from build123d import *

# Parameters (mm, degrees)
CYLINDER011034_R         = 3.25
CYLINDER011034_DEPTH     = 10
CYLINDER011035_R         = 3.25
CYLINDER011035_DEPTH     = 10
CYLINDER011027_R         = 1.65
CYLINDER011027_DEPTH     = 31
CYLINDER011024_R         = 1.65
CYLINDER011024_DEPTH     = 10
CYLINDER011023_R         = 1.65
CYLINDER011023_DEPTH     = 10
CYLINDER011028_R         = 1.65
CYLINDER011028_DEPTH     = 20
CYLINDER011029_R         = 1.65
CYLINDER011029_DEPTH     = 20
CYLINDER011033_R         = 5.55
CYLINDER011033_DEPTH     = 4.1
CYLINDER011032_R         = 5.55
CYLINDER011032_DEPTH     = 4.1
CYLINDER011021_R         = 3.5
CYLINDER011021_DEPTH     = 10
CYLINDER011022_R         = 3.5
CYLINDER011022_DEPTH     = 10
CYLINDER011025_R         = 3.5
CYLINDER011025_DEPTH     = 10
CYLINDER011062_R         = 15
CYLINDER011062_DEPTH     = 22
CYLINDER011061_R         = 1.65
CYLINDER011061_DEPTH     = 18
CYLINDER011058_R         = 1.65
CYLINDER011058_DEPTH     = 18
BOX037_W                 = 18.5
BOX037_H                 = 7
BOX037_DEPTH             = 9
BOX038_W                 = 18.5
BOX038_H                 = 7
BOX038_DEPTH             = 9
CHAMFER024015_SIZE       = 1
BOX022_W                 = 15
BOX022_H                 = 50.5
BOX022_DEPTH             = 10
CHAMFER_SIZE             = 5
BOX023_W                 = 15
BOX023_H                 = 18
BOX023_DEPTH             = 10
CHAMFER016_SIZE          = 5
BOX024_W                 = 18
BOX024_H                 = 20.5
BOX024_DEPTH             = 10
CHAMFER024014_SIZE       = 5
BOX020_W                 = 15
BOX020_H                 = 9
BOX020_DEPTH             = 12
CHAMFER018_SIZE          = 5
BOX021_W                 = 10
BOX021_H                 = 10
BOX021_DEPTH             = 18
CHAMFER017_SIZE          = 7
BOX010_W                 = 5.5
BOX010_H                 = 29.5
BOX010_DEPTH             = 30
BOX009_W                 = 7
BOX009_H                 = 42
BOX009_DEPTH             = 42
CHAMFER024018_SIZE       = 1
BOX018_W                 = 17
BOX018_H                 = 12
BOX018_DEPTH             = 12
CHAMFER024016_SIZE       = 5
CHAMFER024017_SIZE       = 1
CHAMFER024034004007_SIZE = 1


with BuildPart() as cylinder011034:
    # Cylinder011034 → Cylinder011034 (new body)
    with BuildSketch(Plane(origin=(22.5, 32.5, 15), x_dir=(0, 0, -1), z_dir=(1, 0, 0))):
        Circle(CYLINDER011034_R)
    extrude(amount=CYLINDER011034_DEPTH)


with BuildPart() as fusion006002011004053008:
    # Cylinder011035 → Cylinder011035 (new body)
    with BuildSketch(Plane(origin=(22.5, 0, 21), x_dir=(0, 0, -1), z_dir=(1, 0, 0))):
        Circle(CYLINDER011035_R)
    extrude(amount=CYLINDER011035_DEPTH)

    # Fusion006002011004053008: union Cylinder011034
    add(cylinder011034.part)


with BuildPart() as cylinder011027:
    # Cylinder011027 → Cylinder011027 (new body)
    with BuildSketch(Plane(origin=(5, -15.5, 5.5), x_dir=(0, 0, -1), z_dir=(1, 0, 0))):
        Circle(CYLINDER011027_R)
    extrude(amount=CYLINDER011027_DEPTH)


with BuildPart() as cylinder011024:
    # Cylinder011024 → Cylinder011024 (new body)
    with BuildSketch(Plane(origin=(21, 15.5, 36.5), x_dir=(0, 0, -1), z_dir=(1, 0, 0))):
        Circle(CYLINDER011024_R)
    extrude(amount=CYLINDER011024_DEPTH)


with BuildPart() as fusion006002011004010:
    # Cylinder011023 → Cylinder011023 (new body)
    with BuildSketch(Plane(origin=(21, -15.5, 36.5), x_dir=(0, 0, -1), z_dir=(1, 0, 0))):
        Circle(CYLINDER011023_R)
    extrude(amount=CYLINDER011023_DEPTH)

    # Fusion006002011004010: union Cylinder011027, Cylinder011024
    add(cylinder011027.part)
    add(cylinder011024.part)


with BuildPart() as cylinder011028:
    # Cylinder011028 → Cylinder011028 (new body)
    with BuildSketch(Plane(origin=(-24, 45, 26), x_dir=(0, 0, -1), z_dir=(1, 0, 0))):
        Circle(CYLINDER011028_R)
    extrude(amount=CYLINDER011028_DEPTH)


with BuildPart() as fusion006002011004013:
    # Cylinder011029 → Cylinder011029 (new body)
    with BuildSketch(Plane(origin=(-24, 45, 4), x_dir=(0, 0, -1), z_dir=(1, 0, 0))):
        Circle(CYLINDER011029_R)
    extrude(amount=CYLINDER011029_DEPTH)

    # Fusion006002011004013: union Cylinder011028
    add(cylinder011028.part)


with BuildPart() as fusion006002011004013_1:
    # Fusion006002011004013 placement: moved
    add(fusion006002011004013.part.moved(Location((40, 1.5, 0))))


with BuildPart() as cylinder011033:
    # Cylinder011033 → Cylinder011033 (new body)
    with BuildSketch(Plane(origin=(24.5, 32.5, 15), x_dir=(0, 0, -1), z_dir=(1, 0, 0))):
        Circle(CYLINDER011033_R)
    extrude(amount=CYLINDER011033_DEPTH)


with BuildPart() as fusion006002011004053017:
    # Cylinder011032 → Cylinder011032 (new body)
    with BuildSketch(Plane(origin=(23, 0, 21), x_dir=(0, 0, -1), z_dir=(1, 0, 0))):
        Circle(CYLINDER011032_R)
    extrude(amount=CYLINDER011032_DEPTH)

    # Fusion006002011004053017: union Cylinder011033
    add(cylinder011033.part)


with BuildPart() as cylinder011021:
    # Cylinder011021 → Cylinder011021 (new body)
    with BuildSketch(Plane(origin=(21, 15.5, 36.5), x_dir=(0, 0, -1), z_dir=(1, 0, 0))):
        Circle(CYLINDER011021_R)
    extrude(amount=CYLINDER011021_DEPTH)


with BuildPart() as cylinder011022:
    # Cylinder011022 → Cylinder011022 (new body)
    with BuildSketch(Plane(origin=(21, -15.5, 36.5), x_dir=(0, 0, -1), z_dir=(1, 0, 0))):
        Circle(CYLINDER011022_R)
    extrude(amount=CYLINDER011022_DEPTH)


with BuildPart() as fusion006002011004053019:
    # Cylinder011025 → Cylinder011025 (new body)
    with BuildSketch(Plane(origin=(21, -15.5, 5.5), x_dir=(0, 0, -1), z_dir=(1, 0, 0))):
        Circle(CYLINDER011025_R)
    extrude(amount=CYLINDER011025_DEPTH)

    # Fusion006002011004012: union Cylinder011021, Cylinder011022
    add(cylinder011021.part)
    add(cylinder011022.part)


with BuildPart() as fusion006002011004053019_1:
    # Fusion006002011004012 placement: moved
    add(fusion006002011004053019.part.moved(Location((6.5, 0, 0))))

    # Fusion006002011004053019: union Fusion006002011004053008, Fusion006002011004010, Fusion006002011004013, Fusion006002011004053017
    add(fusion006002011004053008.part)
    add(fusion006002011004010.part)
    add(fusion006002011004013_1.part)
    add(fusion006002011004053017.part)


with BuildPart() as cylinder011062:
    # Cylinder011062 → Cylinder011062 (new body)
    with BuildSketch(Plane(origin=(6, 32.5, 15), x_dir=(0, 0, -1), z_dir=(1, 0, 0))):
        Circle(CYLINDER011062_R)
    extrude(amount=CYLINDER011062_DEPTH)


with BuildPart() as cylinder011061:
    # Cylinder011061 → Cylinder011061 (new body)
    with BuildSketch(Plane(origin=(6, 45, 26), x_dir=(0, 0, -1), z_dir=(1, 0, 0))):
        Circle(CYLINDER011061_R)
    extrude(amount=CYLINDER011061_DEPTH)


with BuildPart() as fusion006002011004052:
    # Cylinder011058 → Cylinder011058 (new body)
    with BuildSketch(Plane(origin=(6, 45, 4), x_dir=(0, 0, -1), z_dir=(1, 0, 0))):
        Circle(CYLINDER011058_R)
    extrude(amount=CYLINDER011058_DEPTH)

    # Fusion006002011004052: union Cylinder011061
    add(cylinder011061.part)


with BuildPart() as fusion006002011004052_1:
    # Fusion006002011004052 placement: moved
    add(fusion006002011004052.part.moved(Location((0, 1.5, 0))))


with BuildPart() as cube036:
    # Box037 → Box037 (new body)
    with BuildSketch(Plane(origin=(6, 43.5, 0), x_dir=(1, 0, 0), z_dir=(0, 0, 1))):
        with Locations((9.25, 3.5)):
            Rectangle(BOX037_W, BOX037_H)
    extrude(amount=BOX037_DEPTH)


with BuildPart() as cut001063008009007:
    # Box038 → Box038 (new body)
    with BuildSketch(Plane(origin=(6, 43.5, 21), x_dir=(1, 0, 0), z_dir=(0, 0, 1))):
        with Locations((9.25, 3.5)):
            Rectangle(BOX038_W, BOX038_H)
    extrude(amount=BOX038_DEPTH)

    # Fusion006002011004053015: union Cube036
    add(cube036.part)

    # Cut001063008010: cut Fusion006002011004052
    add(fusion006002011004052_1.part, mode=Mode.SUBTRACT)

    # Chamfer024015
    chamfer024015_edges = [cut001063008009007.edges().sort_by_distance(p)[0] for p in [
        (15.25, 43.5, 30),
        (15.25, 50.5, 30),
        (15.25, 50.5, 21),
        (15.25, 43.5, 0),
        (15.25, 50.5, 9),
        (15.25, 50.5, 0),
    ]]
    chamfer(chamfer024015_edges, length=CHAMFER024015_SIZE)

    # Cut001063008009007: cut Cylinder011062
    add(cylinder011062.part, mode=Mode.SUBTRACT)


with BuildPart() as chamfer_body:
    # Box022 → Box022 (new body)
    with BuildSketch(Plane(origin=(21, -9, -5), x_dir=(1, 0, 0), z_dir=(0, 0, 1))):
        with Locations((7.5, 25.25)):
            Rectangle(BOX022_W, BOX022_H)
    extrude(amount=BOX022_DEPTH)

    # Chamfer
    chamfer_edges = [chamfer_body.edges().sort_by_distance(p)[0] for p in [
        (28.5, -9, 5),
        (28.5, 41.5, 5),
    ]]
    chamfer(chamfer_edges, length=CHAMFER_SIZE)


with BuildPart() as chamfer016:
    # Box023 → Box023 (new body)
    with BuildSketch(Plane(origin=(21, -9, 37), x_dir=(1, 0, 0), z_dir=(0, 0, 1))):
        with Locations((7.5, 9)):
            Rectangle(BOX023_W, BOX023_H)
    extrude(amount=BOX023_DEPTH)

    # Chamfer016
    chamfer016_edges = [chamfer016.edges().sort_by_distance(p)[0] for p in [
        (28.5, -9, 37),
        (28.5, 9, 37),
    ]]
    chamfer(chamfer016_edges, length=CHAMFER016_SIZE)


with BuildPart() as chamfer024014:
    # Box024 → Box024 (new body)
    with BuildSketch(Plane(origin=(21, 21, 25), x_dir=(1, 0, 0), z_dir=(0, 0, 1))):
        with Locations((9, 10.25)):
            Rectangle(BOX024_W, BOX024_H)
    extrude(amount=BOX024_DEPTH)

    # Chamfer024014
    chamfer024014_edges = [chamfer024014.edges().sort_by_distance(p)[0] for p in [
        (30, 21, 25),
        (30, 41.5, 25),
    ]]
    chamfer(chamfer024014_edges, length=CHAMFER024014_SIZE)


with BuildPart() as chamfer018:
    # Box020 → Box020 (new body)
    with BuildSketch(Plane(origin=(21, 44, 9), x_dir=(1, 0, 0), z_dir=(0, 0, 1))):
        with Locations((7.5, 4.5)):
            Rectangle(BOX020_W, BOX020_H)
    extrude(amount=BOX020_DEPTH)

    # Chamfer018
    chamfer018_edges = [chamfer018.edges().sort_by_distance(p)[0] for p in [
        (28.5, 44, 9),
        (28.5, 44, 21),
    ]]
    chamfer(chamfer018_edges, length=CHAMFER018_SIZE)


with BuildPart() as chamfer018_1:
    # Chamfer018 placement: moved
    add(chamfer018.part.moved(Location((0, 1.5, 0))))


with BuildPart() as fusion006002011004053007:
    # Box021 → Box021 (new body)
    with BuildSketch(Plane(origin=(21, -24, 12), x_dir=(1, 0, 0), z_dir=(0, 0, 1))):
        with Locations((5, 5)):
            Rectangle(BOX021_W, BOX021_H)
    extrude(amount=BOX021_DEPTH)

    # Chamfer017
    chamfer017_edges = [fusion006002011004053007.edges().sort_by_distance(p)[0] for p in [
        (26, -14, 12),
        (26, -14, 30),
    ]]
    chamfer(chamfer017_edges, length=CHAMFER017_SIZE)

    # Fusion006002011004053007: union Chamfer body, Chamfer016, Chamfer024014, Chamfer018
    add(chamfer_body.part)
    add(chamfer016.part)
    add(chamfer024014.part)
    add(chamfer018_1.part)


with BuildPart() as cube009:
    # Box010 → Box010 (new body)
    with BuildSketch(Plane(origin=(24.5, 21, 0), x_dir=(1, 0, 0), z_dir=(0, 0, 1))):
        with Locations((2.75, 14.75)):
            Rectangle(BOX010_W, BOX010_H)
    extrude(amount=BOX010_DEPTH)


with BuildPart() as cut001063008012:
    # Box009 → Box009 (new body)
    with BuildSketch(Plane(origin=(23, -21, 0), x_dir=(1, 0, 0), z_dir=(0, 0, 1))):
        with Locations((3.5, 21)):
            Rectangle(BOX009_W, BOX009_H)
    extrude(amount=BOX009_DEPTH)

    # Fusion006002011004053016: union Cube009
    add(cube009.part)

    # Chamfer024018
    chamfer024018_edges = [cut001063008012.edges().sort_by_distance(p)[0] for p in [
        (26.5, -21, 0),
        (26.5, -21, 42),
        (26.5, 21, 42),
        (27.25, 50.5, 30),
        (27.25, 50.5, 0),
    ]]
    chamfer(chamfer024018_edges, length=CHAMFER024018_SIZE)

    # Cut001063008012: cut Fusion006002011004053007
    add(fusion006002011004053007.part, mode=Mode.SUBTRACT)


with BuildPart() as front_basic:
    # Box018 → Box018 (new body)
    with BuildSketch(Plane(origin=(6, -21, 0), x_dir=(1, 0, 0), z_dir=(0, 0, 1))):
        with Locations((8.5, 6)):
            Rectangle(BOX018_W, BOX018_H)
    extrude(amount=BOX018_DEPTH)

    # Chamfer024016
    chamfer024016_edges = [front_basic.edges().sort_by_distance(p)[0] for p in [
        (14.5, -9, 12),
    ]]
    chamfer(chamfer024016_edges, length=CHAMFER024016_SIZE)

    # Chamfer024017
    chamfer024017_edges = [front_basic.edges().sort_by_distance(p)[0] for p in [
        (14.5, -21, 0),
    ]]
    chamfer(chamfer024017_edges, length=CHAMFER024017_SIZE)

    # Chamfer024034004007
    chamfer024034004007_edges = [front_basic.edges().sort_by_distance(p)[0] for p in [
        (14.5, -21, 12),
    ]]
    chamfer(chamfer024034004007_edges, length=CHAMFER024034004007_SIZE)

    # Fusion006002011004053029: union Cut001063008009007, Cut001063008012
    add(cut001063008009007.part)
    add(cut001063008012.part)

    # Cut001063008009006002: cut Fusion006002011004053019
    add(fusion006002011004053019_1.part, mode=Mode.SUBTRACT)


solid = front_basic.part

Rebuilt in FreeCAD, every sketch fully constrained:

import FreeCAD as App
import Part
import Sketcher
from FreeCAD import Vector
Q = App.Units.Quantity


def edges_at(feature, points):
    """Names of the edges that pass closest to the given points."""
    edges = feature.Shape.Edges
    near = lambda p: min(range(len(edges)), key=lambda i: edges[i].distToShape(Part.Vertex(*p))[0])
    return sorted({f"Edge{near(p) + 1}" for p in points})


def add_polygon(sketch, points):
    """Adds a closed chain of lines whose ends are joined by coincident constraints."""
    first, n = sketch.GeometryCount, len(points)
    for a, b in zip(points, points[1:] + points[:1]):
        sketch.addGeometry(Part.LineSegment(App.Vector(*a, 0), App.Vector(*b, 0)), False)
    for i in range(n):
        sketch.addConstraint(Sketcher.Constraint("Coincident", first + i, 2, first + (i + 1) % n, 1))

doc = App.newDocument("Part")
params = doc.addObject("Spreadsheet::Sheet", "Params")
for row, (alias, value) in enumerate([
    ("sketch1_diameter", "6.5 mm"),
    ("pad1_length", "10 mm"),
    ("sketch2_diameter", "6.5 mm"),
    ("pad2_length", "10 mm"),
    ("sketch3_diameter", "3.3 mm"),
    ("pad3_length", "31 mm"),
    ("sketch4_diameter", "3.3 mm"),
    ("pad4_length", "10 mm"),
    ("sketch5_diameter", "3.3 mm"),
    ("pad5_length", "10 mm"),
    ("sketch6_diameter", "3.3 mm"),
    ("pad6_length", "20 mm"),
    ("sketch7_diameter", "3.3 mm"),
    ("pad7_length", "20 mm"),
    ("sketch8_diameter", "11.1 mm"),
    ("pad8_length", "4.1 mm"),
    ("sketch9_diameter", "11.1 mm"),
    ("pad9_length", "4.1 mm"),
    ("sketch10_diameter", "7 mm"),
    ("pad10_length", "10 mm"),
    ("sketch11_diameter", "7 mm"),
    ("pad11_length", "10 mm"),
    ("sketch12_diameter", "7 mm"),
    ("pad12_length", "10 mm"),
    ("sketch13_diameter", "30 mm"),
    ("pad13_length", "22 mm"),
    ("sketch14_diameter", "3.3 mm"),
    ("pad14_length", "18 mm"),
    ("sketch15_diameter", "3.3 mm"),
    ("pad15_length", "18 mm"),
    ("sketch16_height", "7 mm"),
    ("sketch16_width", "18.5 mm"),
    ("pad16_length", "9 mm"),
    ("sketch17_height", "7 mm"),
    ("sketch17_width", "18.5 mm"),
    ("pad17_length", "9 mm"),
    ("chamfer_size", "1 mm"),
    ("sketch18_width", "15 mm"),
    ("sketch18_height", "50.5 mm"),
    ("pad18_length", "10 mm"),
    ("chamfer2_size", "5 mm"),
    ("sketch19_width", "15 mm"),
    ("sketch19_height", "18 mm"),
    ("pad19_length", "10 mm"),
    ("chamfer3_size", "5 mm"),
    ("sketch20_width", "18 mm"),
    ("sketch20_height", "20.5 mm"),
    ("pad20_length", "10 mm"),
    ("chamfer4_size", "5 mm"),
    ("sketch21_width", "15 mm"),
    ("sketch21_height", "9 mm"),
    ("pad21_length", "12 mm"),
    ("chamfer5_size", "5 mm"),
    ("sketch22_width", "10 mm"),
    ("pad22_length", "18 mm"),
    ("chamfer6_size", "7 mm"),
    ("sketch23_width", "5.5 mm"),
    ("sketch23_height", "29.5 mm"),
    ("pad23_length", "30 mm"),
    ("sketch24_width", "7 mm"),
    ("sketch24_height", "42 mm"),
    ("pad24_length", "42 mm"),
    ("chamfer7_size", "1 mm"),
    ("sketch25_width", "17 mm"),
    ("sketch25_height", "12 mm"),
    ("pad25_length", "12 mm"),
    ("chamfer8_size", "5 mm"),
    ("chamfer9_size", "1 mm"),
    ("chamfer10_size", "1 mm"),
], start=1):
    params.set(f"A{row}", alias)
    params.set(f"B{row}", "=" + value)
    params.setAlias(f"B{row}", alias)

body = doc.addObject("PartDesign::Body", "Body")

sketch1 = doc.addObject("Sketcher::SketchObject", "Sketch")
body.addObject(sketch1)
sketch1.AttachmentSupport = (doc.YZ_Plane, [""])
sketch1.MapMode = "FlatFace"
sketch1.AttachmentOffset = App.Placement(Vector(0, 0, 22.5), App.Rotation())
sketch1.addGeometry(Part.Circle(Vector(32.5, 15, 0), Vector(0, 0, 1), 3.2), False)
sketch1.addConstraint([
    Sketcher.Constraint("Diameter", 0, Q("6.5 mm")),
    Sketcher.Constraint("DistanceY", -1, 1, 0, 3, Q("15 mm")),
    Sketcher.Constraint("DistanceX", -1, 1, 0, 3, Q("32.5 mm")),
])
sketch1.setExpression("Constraints[0]", "Params.sketch1_diameter")
pad1 = doc.addObject("PartDesign::Pad", "Pad")
body.addObject(pad1)
pad1.Profile = sketch1
pad1.setExpression("Length", "Params.pad1_length")
body2 = doc.addObject("PartDesign::Body", "Body001")
body2.AllowCompound = True

sketch2 = doc.addObject("Sketcher::SketchObject", "Sketch001")
body2.addObject(sketch2)
sketch2.AttachmentSupport = (doc.getObject("YZ_Plane001"), [""])
sketch2.MapMode = "FlatFace"
sketch2.AttachmentOffset = App.Placement(Vector(0, 0, 22.5), App.Rotation())
sketch2.addGeometry(Part.Circle(Vector(0, 21, 0), Vector(0, 0, 1), 3.2), False)
sketch2.addConstraint([
    Sketcher.Constraint("PointOnObject", 0, 3, -2),
    Sketcher.Constraint("Diameter", 0, Q("6.5 mm")),
    Sketcher.Constraint("DistanceY", -1, 1, 0, 3, Q("21 mm")),
])
sketch2.setExpression("Constraints[1]", "Params.sketch2_diameter")
pad2 = doc.addObject("PartDesign::Pad", "Pad001")
body2.addObject(pad2)
pad2.Profile = sketch2
pad2.setExpression("Length", "Params.pad2_length")
doc.recompute()

boolean = doc.addObject("PartDesign::Boolean", "Boolean")
body2.addObject(boolean)
boolean.Type = "Fuse"
boolean.addObjects([body])
body3 = doc.addObject("PartDesign::Body", "Body002")

sketch3 = doc.addObject("Sketcher::SketchObject", "Sketch002")
body3.addObject(sketch3)
sketch3.AttachmentSupport = (doc.getObject("YZ_Plane002"), [""])
sketch3.MapMode = "FlatFace"
sketch3.AttachmentOffset = App.Placement(Vector(0, 0, 5), App.Rotation())
sketch3.addGeometry(Part.Circle(Vector(-15.5, 5.5, 0), Vector(0, 0, 1), 1.6), False)
sketch3.addConstraint([
    Sketcher.Constraint("Diameter", 0, Q("3.3 mm")),
    Sketcher.Constraint("DistanceX", 0, 3, -1, 1, Q("15.5 mm")),
    Sketcher.Constraint("DistanceY", -1, 1, 0, 3, Q("5.5 mm")),
])
sketch3.setExpression("Constraints[0]", "Params.sketch3_diameter")
pad3 = doc.addObject("PartDesign::Pad", "Pad002")
body3.addObject(pad3)
pad3.Profile = sketch3
pad3.setExpression("Length", "Params.pad3_length")
body4 = doc.addObject("PartDesign::Body", "Body003")

sketch4 = doc.addObject("Sketcher::SketchObject", "Sketch003")
body4.addObject(sketch4)
sketch4.AttachmentSupport = (doc.getObject("YZ_Plane003"), [""])
sketch4.MapMode = "FlatFace"
sketch4.AttachmentOffset = App.Placement(Vector(0, 0, 21), App.Rotation())
sketch4.addGeometry(Part.Circle(Vector(15.5, 36.5, 0), Vector(0, 0, 1), 1.6), False)
sketch4.addConstraint([
    Sketcher.Constraint("Diameter", 0, Q("3.3 mm")),
    Sketcher.Constraint("DistanceX", -1, 1, 0, 3, Q("15.5 mm")),
    Sketcher.Constraint("DistanceY", -1, 1, 0, 3, Q("36.5 mm")),
])
sketch4.setExpression("Constraints[0]", "Params.sketch4_diameter")
pad4 = doc.addObject("PartDesign::Pad", "Pad003")
body4.addObject(pad4)
pad4.Profile = sketch4
pad4.setExpression("Length", "Params.pad4_length")
body5 = doc.addObject("PartDesign::Body", "Body004")
body5.AllowCompound = True

sketch5 = doc.addObject("Sketcher::SketchObject", "Sketch004")
body5.addObject(sketch5)
sketch5.AttachmentSupport = (doc.getObject("YZ_Plane004"), [""])
sketch5.MapMode = "FlatFace"
sketch5.AttachmentOffset = App.Placement(Vector(0, 0, 21), App.Rotation())
sketch5.addGeometry(Part.Circle(Vector(-15.5, 36.5, 0), Vector(0, 0, 1), 1.6), False)
sketch5.addConstraint([
    Sketcher.Constraint("Diameter", 0, Q("3.3 mm")),
    Sketcher.Constraint("DistanceX", 0, 3, -1, 1, Q("15.5 mm")),
    Sketcher.Constraint("DistanceY", -1, 1, 0, 3, Q("36.5 mm")),
])
sketch5.setExpression("Constraints[0]", "Params.sketch5_diameter")
pad5 = doc.addObject("PartDesign::Pad", "Pad004")
body5.addObject(pad5)
pad5.Profile = sketch5
pad5.setExpression("Length", "Params.pad5_length")
doc.recompute()

boolean2 = doc.addObject("PartDesign::Boolean", "Boolean001")
body5.addObject(boolean2)
boolean2.Type = "Fuse"
boolean2.addObjects([body3])
doc.recompute()

boolean3 = doc.addObject("PartDesign::Boolean", "Boolean002")
body5.addObject(boolean3)
boolean3.Type = "Fuse"
boolean3.addObjects([body4])
body6 = doc.addObject("PartDesign::Body", "Body005")

sketch6 = doc.addObject("Sketcher::SketchObject", "Sketch005")
body6.addObject(sketch6)
sketch6.AttachmentSupport = (doc.getObject("YZ_Plane005"), [""])
sketch6.MapMode = "FlatFace"
sketch6.AttachmentOffset = App.Placement(Vector(0, 0, -24), App.Rotation())
sketch6.addGeometry(Part.Circle(Vector(45, 26, 0), Vector(0, 0, 1), 1.6), False)
sketch6.addConstraint([
    Sketcher.Constraint("Diameter", 0, Q("3.3 mm")),
    Sketcher.Constraint("DistanceX", -1, 1, 0, 3, Q("45 mm")),
    Sketcher.Constraint("DistanceY", -1, 1, 0, 3, Q("26 mm")),
])
sketch6.setExpression("Constraints[0]", "Params.sketch6_diameter")
pad6 = doc.addObject("PartDesign::Pad", "Pad005")
body6.addObject(pad6)
pad6.Profile = sketch6
pad6.setExpression("Length", "Params.pad6_length")
body7 = doc.addObject("PartDesign::Body", "Body006")
body7.AllowCompound = True

sketch7 = doc.addObject("Sketcher::SketchObject", "Sketch006")
body7.addObject(sketch7)
sketch7.AttachmentSupport = (doc.getObject("YZ_Plane006"), [""])
sketch7.MapMode = "FlatFace"
sketch7.AttachmentOffset = App.Placement(Vector(0, 0, -24), App.Rotation())
sketch7.addGeometry(Part.Circle(Vector(45, 4, 0), Vector(0, 0, 1), 1.6), False)
sketch7.addConstraint([
    Sketcher.Constraint("Diameter", 0, Q("3.3 mm")),
    Sketcher.Constraint("DistanceX", -1, 1, 0, 3, Q("45 mm")),
    Sketcher.Constraint("DistanceY", -1, 1, 0, 3, Q("4 mm")),
])
sketch7.setExpression("Constraints[0]", "Params.sketch7_diameter")
pad7 = doc.addObject("PartDesign::Pad", "Pad006")
body7.addObject(pad7)
pad7.Profile = sketch7
pad7.setExpression("Length", "Params.pad7_length")
doc.recompute()

boolean4 = doc.addObject("PartDesign::Boolean", "Boolean003")
body7.addObject(boolean4)
boolean4.Type = "Fuse"
boolean4.addObjects([body6])
body8 = doc.addObject("PartDesign::Body", "Body007")
body8.AllowCompound = True
doc.recompute()

body7.Placement = App.Placement(Vector(40, 1.5, 0), App.Rotation(Vector(0, 0, 1), 0))
boolean5 = doc.addObject("PartDesign::Boolean", "Boolean004")
body8.addObject(boolean5)
boolean5.Type = "Fuse"
boolean5.addObjects([body7])
body9 = doc.addObject("PartDesign::Body", "Body008")

sketch8 = doc.addObject("Sketcher::SketchObject", "Sketch007")
body9.addObject(sketch8)
sketch8.AttachmentSupport = (doc.getObject("YZ_Plane008"), [""])
sketch8.MapMode = "FlatFace"
sketch8.AttachmentOffset = App.Placement(Vector(0, 0, 24.5), App.Rotation())
sketch8.addGeometry(Part.Circle(Vector(32, 15, 0), Vector(0, 0, 1), 6), False)
sketch8.addConstraint([
    Sketcher.Constraint("Diameter", 0, Q("11.1 mm")),
    Sketcher.Constraint("DistanceY", -1, 1, 0, 3, Q("15 mm")),
    Sketcher.Constraint("DistanceX", -1, 1, 0, 3, Q("32.5 mm")),
])
sketch8.setExpression("Constraints[0]", "Params.sketch8_diameter")
pad8 = doc.addObject("PartDesign::Pad", "Pad007")
body9.addObject(pad8)
pad8.Profile = sketch8
pad8.setExpression("Length", "Params.pad8_length")
body10 = doc.addObject("PartDesign::Body", "Body009")
body10.AllowCompound = True

sketch9 = doc.addObject("Sketcher::SketchObject", "Sketch008")
body10.addObject(sketch9)
sketch9.AttachmentSupport = (doc.getObject("YZ_Plane009"), [""])
sketch9.MapMode = "FlatFace"
sketch9.AttachmentOffset = App.Placement(Vector(0, 0, 23), App.Rotation())
sketch9.addGeometry(Part.Circle(Vector(0, 21, 0), Vector(0, 0, 1), 6), False)
sketch9.addConstraint([
    Sketcher.Constraint("PointOnObject", 0, 3, -2),
    Sketcher.Constraint("Diameter", 0, Q("11.1 mm")),
    Sketcher.Constraint("DistanceY", -1, 1, 0, 3, Q("21 mm")),
])
sketch9.setExpression("Constraints[1]", "Params.sketch9_diameter")
pad9 = doc.addObject("PartDesign::Pad", "Pad008")
body10.addObject(pad9)
pad9.Profile = sketch9
pad9.setExpression("Length", "Params.pad9_length")
doc.recompute()

boolean6 = doc.addObject("PartDesign::Boolean", "Boolean005")
body10.addObject(boolean6)
boolean6.Type = "Fuse"
boolean6.addObjects([body9])
body11 = doc.addObject("PartDesign::Body", "Body010")

sketch10 = doc.addObject("Sketcher::SketchObject", "Sketch009")
body11.addObject(sketch10)
sketch10.AttachmentSupport = (doc.getObject("YZ_Plane010"), [""])
sketch10.MapMode = "FlatFace"
sketch10.AttachmentOffset = App.Placement(Vector(0, 0, 21), App.Rotation())
sketch10.addGeometry(Part.Circle(Vector(15.5, 36.5, 0), Vector(0, 0, 1), 3.5), False)
sketch10.addConstraint([
    Sketcher.Constraint("Diameter", 0, Q("7 mm")),
    Sketcher.Constraint("DistanceX", -1, 1, 0, 3, Q("15.5 mm")),
    Sketcher.Constraint("DistanceY", -1, 1, 0, 3, Q("36.5 mm")),
])
sketch10.setExpression("Constraints[0]", "Params.sketch10_diameter")
pad10 = doc.addObject("PartDesign::Pad", "Pad009")
body11.addObject(pad10)
pad10.Profile = sketch10
pad10.setExpression("Length", "Params.pad10_length")
body12 = doc.addObject("PartDesign::Body", "Body011")

sketch11 = doc.addObject("Sketcher::SketchObject", "Sketch010")
body12.addObject(sketch11)
sketch11.AttachmentSupport = (doc.getObject("YZ_Plane011"), [""])
sketch11.MapMode = "FlatFace"
sketch11.AttachmentOffset = App.Placement(Vector(0, 0, 21), App.Rotation())
sketch11.addGeometry(Part.Circle(Vector(-15.5, 36.5, 0), Vector(0, 0, 1), 3.5), False)
sketch11.addConstraint([
    Sketcher.Constraint("Diameter", 0, Q("7 mm")),
    Sketcher.Constraint("DistanceX", 0, 3, -1, 1, Q("15.5 mm")),
    Sketcher.Constraint("DistanceY", -1, 1, 0, 3, Q("36.5 mm")),
])
sketch11.setExpression("Constraints[0]", "Params.sketch11_diameter")
pad11 = doc.addObject("PartDesign::Pad", "Pad010")
body12.addObject(pad11)
pad11.Profile = sketch11
pad11.setExpression("Length", "Params.pad11_length")
body13 = doc.addObject("PartDesign::Body", "Body012")
body13.AllowCompound = True

sketch12 = doc.addObject("Sketcher::SketchObject", "Sketch011")
body13.addObject(sketch12)
sketch12.AttachmentSupport = (doc.getObject("YZ_Plane012"), [""])
sketch12.MapMode = "FlatFace"
sketch12.AttachmentOffset = App.Placement(Vector(0, 0, 21), App.Rotation())
sketch12.addGeometry(Part.Circle(Vector(-15.5, 5.5, 0), Vector(0, 0, 1), 3.5), False)
sketch12.addConstraint([
    Sketcher.Constraint("Diameter", 0, Q("7 mm")),
    Sketcher.Constraint("DistanceX", 0, 3, -1, 1, Q("15.5 mm")),
    Sketcher.Constraint("DistanceY", -1, 1, 0, 3, Q("5.5 mm")),
])
sketch12.setExpression("Constraints[0]", "Params.sketch12_diameter")
pad12 = doc.addObject("PartDesign::Pad", "Pad011")
body13.addObject(pad12)
pad12.Profile = sketch12
pad12.setExpression("Length", "Params.pad12_length")
doc.recompute()

boolean7 = doc.addObject("PartDesign::Boolean", "Boolean006")
body13.addObject(boolean7)
boolean7.Type = "Fuse"
boolean7.addObjects([body11])
doc.recompute()

boolean8 = doc.addObject("PartDesign::Boolean", "Boolean007")
body13.addObject(boolean8)
boolean8.Type = "Fuse"
boolean8.addObjects([body12])
body14 = doc.addObject("PartDesign::Body", "Body013")
body14.AllowCompound = True
doc.recompute()

body13.Placement = App.Placement(Vector(6.5, 0, 0), App.Rotation(Vector(0, 0, 1), 0))
boolean9 = doc.addObject("PartDesign::Boolean", "Boolean008")
body14.addObject(boolean9)
boolean9.Type = "Fuse"
boolean9.addObjects([body13])
doc.recompute()

boolean10 = doc.addObject("PartDesign::Boolean", "Boolean009")
body14.addObject(boolean10)
boolean10.Type = "Fuse"
boolean10.addObjects([body2])
doc.recompute()

boolean11 = doc.addObject("PartDesign::Boolean", "Boolean010")
body14.addObject(boolean11)
boolean11.Type = "Fuse"
boolean11.addObjects([body5])
doc.recompute()

boolean12 = doc.addObject("PartDesign::Boolean", "Boolean011")
body14.addObject(boolean12)
boolean12.Type = "Fuse"
boolean12.addObjects([body8])
doc.recompute()

boolean13 = doc.addObject("PartDesign::Boolean", "Boolean012")
body14.addObject(boolean13)
boolean13.Type = "Fuse"
boolean13.addObjects([body10])
body15 = doc.addObject("PartDesign::Body", "Body014")

sketch13 = doc.addObject("Sketcher::SketchObject", "Sketch012")
body15.addObject(sketch13)
sketch13.AttachmentSupport = (doc.getObject("YZ_Plane014"), [""])
sketch13.MapMode = "FlatFace"
sketch13.AttachmentOffset = App.Placement(Vector(0, 0, 6), App.Rotation())
sketch13.addGeometry(Part.Circle(Vector(32, 15, 0), Vector(0, 0, 1), 15), False)
sketch13.addConstraint([
    Sketcher.Constraint("Diameter", 0, Q("30 mm")),
    Sketcher.Constraint("DistanceY", -1, 1, 0, 3, Q("15 mm")),
    Sketcher.Constraint("DistanceX", -1, 1, 0, 3, Q("32.5 mm")),
])
sketch13.setExpression("Constraints[0]", "Params.sketch13_diameter")
pad13 = doc.addObject("PartDesign::Pad", "Pad012")
body15.addObject(pad13)
pad13.Profile = sketch13
pad13.setExpression("Length", "Params.pad13_length")
body16 = doc.addObject("PartDesign::Body", "Body015")

sketch14 = doc.addObject("Sketcher::SketchObject", "Sketch013")
body16.addObject(sketch14)
sketch14.AttachmentSupport = (doc.getObject("YZ_Plane015"), [""])
sketch14.MapMode = "FlatFace"
sketch14.AttachmentOffset = App.Placement(Vector(0, 0, 6), App.Rotation())
sketch14.addGeometry(Part.Circle(Vector(45, 26, 0), Vector(0, 0, 1), 1.6), False)
sketch14.addConstraint([
    Sketcher.Constraint("Diameter", 0, Q("3.3 mm")),
    Sketcher.Constraint("DistanceX", -1, 1, 0, 3, Q("45 mm")),
    Sketcher.Constraint("DistanceY", -1, 1, 0, 3, Q("26 mm")),
])
sketch14.setExpression("Constraints[0]", "Params.sketch14_diameter")
pad14 = doc.addObject("PartDesign::Pad", "Pad013")
body16.addObject(pad14)
pad14.Profile = sketch14
pad14.setExpression("Length", "Params.pad14_length")
body17 = doc.addObject("PartDesign::Body", "Body016")
body17.AllowCompound = True

sketch15 = doc.addObject("Sketcher::SketchObject", "Sketch014")
body17.addObject(sketch15)
sketch15.AttachmentSupport = (doc.getObject("YZ_Plane016"), [""])
sketch15.MapMode = "FlatFace"
sketch15.AttachmentOffset = App.Placement(Vector(0, 0, 6), App.Rotation())
sketch15.addGeometry(Part.Circle(Vector(45, 4, 0), Vector(0, 0, 1), 1.6), False)
sketch15.addConstraint([
    Sketcher.Constraint("Diameter", 0, Q("3.3 mm")),
    Sketcher.Constraint("DistanceX", -1, 1, 0, 3, Q("45 mm")),
    Sketcher.Constraint("DistanceY", -1, 1, 0, 3, Q("4 mm")),
])
sketch15.setExpression("Constraints[0]", "Params.sketch15_diameter")
pad15 = doc.addObject("PartDesign::Pad", "Pad014")
body17.addObject(pad15)
pad15.Profile = sketch15
pad15.setExpression("Length", "Params.pad15_length")
doc.recompute()

boolean14 = doc.addObject("PartDesign::Boolean", "Boolean013")
body17.addObject(boolean14)
boolean14.Type = "Fuse"
boolean14.addObjects([body16])
body18 = doc.addObject("PartDesign::Body", "Body017")
body18.AllowCompound = True
doc.recompute()

body17.Placement = App.Placement(Vector(0, 1.5, 0), App.Rotation(Vector(0, 0, 1), 0))
boolean15 = doc.addObject("PartDesign::Boolean", "Boolean014")
body18.addObject(boolean15)
boolean15.Type = "Fuse"
boolean15.addObjects([body17])
body19 = doc.addObject("PartDesign::Body", "Body018")

sketch16 = doc.addObject("Sketcher::SketchObject", "Sketch015")
body19.addObject(sketch16)
sketch16.AttachmentSupport = (doc.getObject("XY_Plane018"), [""])
sketch16.MapMode = "FlatFace"
add_polygon(sketch16, [(6, 50), (6, 44), (24, 44), (24, 50)])
sketch16.addConstraint([
    Sketcher.Constraint("Vertical", 0),
    Sketcher.Constraint("Horizontal", 1),
    Sketcher.Constraint("Vertical", 2),
    Sketcher.Constraint("Horizontal", 3),
    Sketcher.Constraint("DistanceY", 0, 2, 0, 1, Q("7 mm")),
    Sketcher.Constraint("DistanceX", 1, 1, 1, 2, Q("18.5 mm")),
    Sketcher.Constraint("DistanceX", -1, 1, 0, 2, Q("6 mm")),
    Sketcher.Constraint("DistanceY", -1, 1, 0, 2, Q("43.5 mm")),
])
sketch16.setExpression("Constraints[8]", "Params.sketch16_height")
sketch16.setExpression("Constraints[9]", "Params.sketch16_width")
pad16 = doc.addObject("PartDesign::Pad", "Pad015")
body19.addObject(pad16)
pad16.Profile = sketch16
pad16.setExpression("Length", "Params.pad16_length")
body20 = doc.addObject("PartDesign::Body", "Body019")
body20.AllowCompound = True

sketch17 = doc.addObject("Sketcher::SketchObject", "Sketch016")
body20.addObject(sketch17)
sketch17.AttachmentSupport = (doc.getObject("XY_Plane019"), [""])
sketch17.MapMode = "FlatFace"
sketch17.AttachmentOffset = App.Placement(Vector(0, 0, 21), App.Rotation())
add_polygon(sketch17, [(6, 50), (6, 44), (24, 44), (24, 50)])
sketch17.addConstraint([
    Sketcher.Constraint("Vertical", 0),
    Sketcher.Constraint("Horizontal", 1),
    Sketcher.Constraint("Vertical", 2),
    Sketcher.Constraint("Horizontal", 3),
    Sketcher.Constraint("DistanceY", 0, 2, 0, 1, Q("7 mm")),
    Sketcher.Constraint("DistanceX", 1, 1, 1, 2, Q("18.5 mm")),
    Sketcher.Constraint("DistanceX", -1, 1, 0, 2, Q("6 mm")),
    Sketcher.Constraint("DistanceY", -1, 1, 0, 2, Q("43.5 mm")),
])
sketch17.setExpression("Constraints[8]", "Params.sketch17_height")
sketch17.setExpression("Constraints[9]", "Params.sketch17_width")
pad17 = doc.addObject("PartDesign::Pad", "Pad016")
body20.addObject(pad17)
pad17.Profile = sketch17
pad17.setExpression("Length", "Params.pad17_length")
doc.recompute()

boolean16 = doc.addObject("PartDesign::Boolean", "Boolean015")
body20.addObject(boolean16)
boolean16.Type = "Fuse"
boolean16.addObjects([body19])
doc.recompute()

boolean17 = doc.addObject("PartDesign::Boolean", "Boolean016")
body20.addObject(boolean17)
boolean17.Type = "Cut"
boolean17.addObjects([body18])
doc.recompute()

chamfer = doc.addObject("PartDesign::Chamfer", "Chamfer")
body20.addObject(chamfer)
chamfer.Base = (boolean17, edges_at(boolean17, [
    (15.25, 43.5, 30),
    (15.25, 50.5, 30),
    (15.25, 50.5, 21),
    (15.25, 43.5, 0),
    (15.25, 50.5, 9),
    (15.25, 50.5, 0),
]))
chamfer.setExpression("Size", "Params.chamfer_size")
doc.recompute()

boolean18 = doc.addObject("PartDesign::Boolean", "Boolean017")
body20.addObject(boolean18)
boolean18.Type = "Cut"
boolean18.addObjects([body15])
body21 = doc.addObject("PartDesign::Body", "Body020")

sketch18 = doc.addObject("Sketcher::SketchObject", "Sketch017")
body21.addObject(sketch18)
sketch18.AttachmentSupport = (doc.getObject("XY_Plane020"), [""])
sketch18.MapMode = "FlatFace"
sketch18.AttachmentOffset = App.Placement(Vector(0, 0, -5), App.Rotation())
add_polygon(sketch18, [(21, 42), (21, -9), (36, -9), (36, 42)])
sketch18.addConstraint([
    Sketcher.Constraint("Vertical", 0),
    Sketcher.Constraint("Horizontal", 1),
    Sketcher.Constraint("Vertical", 2),
    Sketcher.Constraint("Horizontal", 3),
    Sketcher.Constraint("DistanceX", 1, 1, 1, 2, Q("15 mm")),
    Sketcher.Constraint("DistanceY", 0, 2, 0, 1, Q("50.5 mm")),
    Sketcher.Constraint("DistanceX", -1, 1, 0, 2, Q("21 mm")),
    Sketcher.Constraint("DistanceY", 0, 2, -1, 1, Q("9 mm")),
])
sketch18.setExpression("Constraints[8]", "Params.sketch18_width")
sketch18.setExpression("Constraints[9]", "Params.sketch18_height")
pad18 = doc.addObject("PartDesign::Pad", "Pad017")
body21.addObject(pad18)
pad18.Profile = sketch18
pad18.setExpression("Length", "Params.pad18_length")
doc.recompute()

chamfer2 = doc.addObject("PartDesign::Chamfer", "Chamfer001")
body21.addObject(chamfer2)
chamfer2.Base = (pad18, edges_at(pad18, [(28.5, -9, 5), (28.5, 41.5, 5)]))
chamfer2.setExpression("Size", "Params.chamfer2_size")
body22 = doc.addObject("PartDesign::Body", "Body021")

sketch19 = doc.addObject("Sketcher::SketchObject", "Sketch018")
body22.addObject(sketch19)
sketch19.AttachmentSupport = (doc.getObject("XY_Plane021"), [""])
sketch19.MapMode = "FlatFace"
sketch19.AttachmentOffset = App.Placement(Vector(0, 0, 37), App.Rotation())
add_polygon(sketch19, [(21, 9), (21, -9), (36, -9), (36, 9)])
sketch19.addConstraint([
    Sketcher.Constraint("Vertical", 0),
    Sketcher.Constraint("Horizontal", 1),
    Sketcher.Constraint("Vertical", 2),
    Sketcher.Constraint("Horizontal", 3),
    Sketcher.Constraint("DistanceX", 1, 1, 1, 2, Q("15 mm")),
    Sketcher.Constraint("DistanceY", 0, 2, 0, 1, Q("18 mm")),
    Sketcher.Constraint("DistanceX", -1, 1, 0, 2, Q("21 mm")),
    Sketcher.Constraint("DistanceY", 0, 2, -1, 1, Q("9 mm")),
])
sketch19.setExpression("Constraints[8]", "Params.sketch19_width")
sketch19.setExpression("Constraints[9]", "Params.sketch19_height")
pad19 = doc.addObject("PartDesign::Pad", "Pad018")
body22.addObject(pad19)
pad19.Profile = sketch19
pad19.setExpression("Length", "Params.pad19_length")
doc.recompute()

chamfer3 = doc.addObject("PartDesign::Chamfer", "Chamfer002")
body22.addObject(chamfer3)
chamfer3.Base = (pad19, edges_at(pad19, [(28.5, -9, 37), (28.5, 9, 37)]))
chamfer3.setExpression("Size", "Params.chamfer3_size")
body23 = doc.addObject("PartDesign::Body", "Body022")

sketch20 = doc.addObject("Sketcher::SketchObject", "Sketch019")
body23.addObject(sketch20)
sketch20.AttachmentSupport = (doc.getObject("XY_Plane022"), [""])
sketch20.MapMode = "FlatFace"
sketch20.AttachmentOffset = App.Placement(Vector(0, 0, 25), App.Rotation())
add_polygon(sketch20, [(21, 42), (21, 21), (39, 21), (39, 42)])
sketch20.addConstraint([
    Sketcher.Constraint("Vertical", 0),
    Sketcher.Constraint("Horizontal", 1),
    Sketcher.Constraint("Vertical", 2),
    Sketcher.Constraint("Horizontal", 3),
    Sketcher.Constraint("DistanceX", 1, 1, 1, 2, Q("18 mm")),
    Sketcher.Constraint("DistanceY", 0, 2, 0, 1, Q("20.5 mm")),
    Sketcher.Constraint("DistanceX", -1, 1, 0, 2, Q("21 mm")),
    Sketcher.Constraint("DistanceY", -1, 1, 0, 2, Q("21 mm")),
])
sketch20.setExpression("Constraints[8]", "Params.sketch20_width")
sketch20.setExpression("Constraints[9]", "Params.sketch20_height")
pad20 = doc.addObject("PartDesign::Pad", "Pad019")
body23.addObject(pad20)
pad20.Profile = sketch20
pad20.setExpression("Length", "Params.pad20_length")
doc.recompute()

chamfer4 = doc.addObject("PartDesign::Chamfer", "Chamfer003")
body23.addObject(chamfer4)
chamfer4.Base = (pad20, edges_at(pad20, [(30, 21, 25), (30, 41.5, 25)]))
chamfer4.setExpression("Size", "Params.chamfer4_size")
body24 = doc.addObject("PartDesign::Body", "Body023")

sketch21 = doc.addObject("Sketcher::SketchObject", "Sketch020")
body24.addObject(sketch21)
sketch21.AttachmentSupport = (doc.getObject("XY_Plane023"), [""])
sketch21.MapMode = "FlatFace"
sketch21.AttachmentOffset = App.Placement(Vector(0, 0, 9), App.Rotation())
add_polygon(sketch21, [(21, 53), (21, 44), (36, 44), (36, 53)])
sketch21.addConstraint([
    Sketcher.Constraint("Vertical", 0),
    Sketcher.Constraint("Horizontal", 1),
    Sketcher.Constraint("Vertical", 2),
    Sketcher.Constraint("Horizontal", 3),
    Sketcher.Constraint("DistanceX", 1, 1, 1, 2, Q("15 mm")),
    Sketcher.Constraint("DistanceY", 0, 2, 0, 1, Q("9 mm")),
    Sketcher.Constraint("DistanceX", -1, 1, 0, 2, Q("21 mm")),
    Sketcher.Constraint("DistanceY", -1, 1, 0, 2, Q("44 mm")),
])
sketch21.setExpression("Constraints[8]", "Params.sketch21_width")
sketch21.setExpression("Constraints[9]", "Params.sketch21_height")
pad21 = doc.addObject("PartDesign::Pad", "Pad020")
body24.addObject(pad21)
pad21.Profile = sketch21
pad21.setExpression("Length", "Params.pad21_length")
doc.recompute()

chamfer5 = doc.addObject("PartDesign::Chamfer", "Chamfer004")
body24.addObject(chamfer5)
chamfer5.Base = (pad21, edges_at(pad21, [(28.5, 44, 9), (28.5, 44, 21)]))
chamfer5.setExpression("Size", "Params.chamfer5_size")
body25 = doc.addObject("PartDesign::Body", "Body024")
doc.recompute()

body24.Placement = App.Placement(Vector(0, 1.5, 0), App.Rotation(Vector(0, 0, 1), 0))
boolean19 = doc.addObject("PartDesign::Boolean", "Boolean018")
body25.addObject(boolean19)
boolean19.Type = "Fuse"
boolean19.addObjects([body24])
body26 = doc.addObject("PartDesign::Body", "Body025")
body26.AllowCompound = True

sketch22 = doc.addObject("Sketcher::SketchObject", "Sketch021")
body26.addObject(sketch22)
sketch22.AttachmentSupport = (doc.getObject("XY_Plane025"), [""])
sketch22.MapMode = "FlatFace"
sketch22.AttachmentOffset = App.Placement(Vector(0, 0, 12), App.Rotation())
add_polygon(sketch22, [(21, -14), (21, -24), (31, -24), (31, -14)])
sketch22.addConstraint([
    Sketcher.Constraint("Vertical", 0),
    Sketcher.Constraint("Horizontal", 1),
    Sketcher.Constraint("Vertical", 2),
    Sketcher.Constraint("Horizontal", 3),
    Sketcher.Constraint("Equal", 3, 0),
    Sketcher.Constraint("DistanceX", 1, 1, 1, 2, Q("10 mm")),
    Sketcher.Constraint("DistanceX", -1, 1, 0, 2, Q("21 mm")),
    Sketcher.Constraint("DistanceY", 0, 2, -1, 1, Q("24 mm")),
])
sketch22.setExpression("Constraints[9]", "Params.sketch22_width")
pad22 = doc.addObject("PartDesign::Pad", "Pad021")
body26.addObject(pad22)
pad22.Profile = sketch22
pad22.setExpression("Length", "Params.pad22_length")
doc.recompute()

chamfer6 = doc.addObject("PartDesign::Chamfer", "Chamfer005")
body26.addObject(chamfer6)
chamfer6.Base = (pad22, edges_at(pad22, [(26, -14, 12), (26, -14, 30)]))
chamfer6.setExpression("Size", "Params.chamfer6_size")
doc.recompute()

boolean20 = doc.addObject("PartDesign::Boolean", "Boolean019")
body26.addObject(boolean20)
boolean20.Type = "Fuse"
boolean20.addObjects([body21])
doc.recompute()

boolean21 = doc.addObject("PartDesign::Boolean", "Boolean020")
body26.addObject(boolean21)
boolean21.Type = "Fuse"
boolean21.addObjects([body22])
doc.recompute()

boolean22 = doc.addObject("PartDesign::Boolean", "Boolean021")
body26.addObject(boolean22)
boolean22.Type = "Fuse"
boolean22.addObjects([body23])
doc.recompute()

boolean23 = doc.addObject("PartDesign::Boolean", "Boolean022")
body26.addObject(boolean23)
boolean23.Type = "Fuse"
boolean23.addObjects([body25])
body27 = doc.addObject("PartDesign::Body", "Body026")

sketch23 = doc.addObject("Sketcher::SketchObject", "Sketch022")
body27.addObject(sketch23)
sketch23.AttachmentSupport = (doc.getObject("XY_Plane026"), [""])
sketch23.MapMode = "FlatFace"
add_polygon(sketch23, [(24, 50), (24, 21), (30, 21), (30, 50)])
sketch23.addConstraint([
    Sketcher.Constraint("Vertical", 0),
    Sketcher.Constraint("Horizontal", 1),
    Sketcher.Constraint("Vertical", 2),
    Sketcher.Constraint("Horizontal", 3),
    Sketcher.Constraint("DistanceX", 1, 1, 1, 2, Q("5.5 mm")),
    Sketcher.Constraint("DistanceY", 0, 2, 0, 1, Q("29.5 mm")),
    Sketcher.Constraint("DistanceY", -1, 1, 0, 2, Q("21 mm")),
    Sketcher.Constraint("DistanceX", -1, 1, 1, 2, Q("30 mm")),
])
sketch23.setExpression("Constraints[8]", "Params.sketch23_width")
sketch23.setExpression("Constraints[9]", "Params.sketch23_height")
pad23 = doc.addObject("PartDesign::Pad", "Pad022")
body27.addObject(pad23)
pad23.Profile = sketch23
pad23.setExpression("Length", "Params.pad23_length")
body28 = doc.addObject("PartDesign::Body", "Body027")

sketch24 = doc.addObject("Sketcher::SketchObject", "Sketch023")
body28.addObject(sketch24)
sketch24.AttachmentSupport = (doc.getObject("XY_Plane027"), [""])
sketch24.MapMode = "FlatFace"
add_polygon(sketch24, [(23, 21), (23, -21), (30, -21), (30, 21)])
sketch24.addConstraint([
    Sketcher.Constraint("Vertical", 0),
    Sketcher.Constraint("Horizontal", 1),
    Sketcher.Constraint("Vertical", 2),
    Sketcher.Constraint("Horizontal", 3),
    Sketcher.Constraint("DistanceX", 1, 1, 1, 2, Q("7 mm")),
    Sketcher.Constraint("DistanceY", 0, 2, 0, 1, Q("42 mm")),
    Sketcher.Constraint("DistanceX", -1, 1, 0, 2, Q("23 mm")),
    Sketcher.Constraint("DistanceY", 0, 2, -1, 1, Q("21 mm")),
])
sketch24.setExpression("Constraints[8]", "Params.sketch24_width")
sketch24.setExpression("Constraints[9]", "Params.sketch24_height")
pad24 = doc.addObject("PartDesign::Pad", "Pad023")
body28.addObject(pad24)
pad24.Profile = sketch24
pad24.setExpression("Length", "Params.pad24_length")
doc.recompute()

boolean24 = doc.addObject("PartDesign::Boolean", "Boolean023")
body28.addObject(boolean24)
boolean24.Type = "Fuse"
boolean24.addObjects([body27])
doc.recompute()

chamfer7 = doc.addObject("PartDesign::Chamfer", "Chamfer006")
body28.addObject(chamfer7)
chamfer7.Base = (boolean24, edges_at(boolean24, [
    (26.5, -21, 0),
    (26.5, -21, 42),
    (26.5, 21, 42),
    (27.25, 50.5, 30),
    (27.25, 50.5, 0),
]))
chamfer7.setExpression("Size", "Params.chamfer7_size")
doc.recompute()

boolean25 = doc.addObject("PartDesign::Boolean", "Boolean024")
body28.addObject(boolean25)
boolean25.Type = "Cut"
boolean25.addObjects([body26])
body29 = doc.addObject("PartDesign::Body", "Body028")
body29.AllowCompound = True

sketch25 = doc.addObject("Sketcher::SketchObject", "Sketch024")
body29.addObject(sketch25)
sketch25.AttachmentSupport = (doc.getObject("XY_Plane028"), [""])
sketch25.MapMode = "FlatFace"
add_polygon(sketch25, [(6, -9), (6, -21), (23, -21), (23, -9)])
sketch25.addConstraint([
    Sketcher.Constraint("Vertical", 0),
    Sketcher.Constraint("Horizontal", 1),
    Sketcher.Constraint("Vertical", 2),
    Sketcher.Constraint("Horizontal", 3),
    Sketcher.Constraint("DistanceX", 1, 1, 1, 2, Q("17 mm")),
    Sketcher.Constraint("DistanceY", 0, 2, 0, 1, Q("12 mm")),
    Sketcher.Constraint("DistanceX", -1, 1, 0, 2, Q("6 mm")),
    Sketcher.Constraint("DistanceY", 0, 2, -1, 1, Q("21 mm")),
])
sketch25.setExpression("Constraints[8]", "Params.sketch25_width")
sketch25.setExpression("Constraints[9]", "Params.sketch25_height")
pad25 = doc.addObject("PartDesign::Pad", "Pad024")
body29.addObject(pad25)
pad25.Profile = sketch25
pad25.setExpression("Length", "Params.pad25_length")
doc.recompute()

chamfer8 = doc.addObject("PartDesign::Chamfer", "Chamfer007")
body29.addObject(chamfer8)
chamfer8.Base = (pad25, edges_at(pad25, [(14.5, -9, 12)]))
chamfer8.setExpression("Size", "Params.chamfer8_size")
doc.recompute()

chamfer9 = doc.addObject("PartDesign::Chamfer", "Chamfer008")
body29.addObject(chamfer9)
chamfer9.Base = (chamfer8, edges_at(chamfer8, [(14.5, -21, 0)]))
chamfer9.setExpression("Size", "Params.chamfer9_size")
doc.recompute()

chamfer10 = doc.addObject("PartDesign::Chamfer", "Chamfer009")
body29.addObject(chamfer10)
chamfer10.Base = (chamfer9, edges_at(chamfer9, [(14.5, -21, 12)]))
chamfer10.setExpression("Size", "Params.chamfer10_size")
doc.recompute()

boolean26 = doc.addObject("PartDesign::Boolean", "Boolean025")
body29.addObject(boolean26)
boolean26.Type = "Fuse"
boolean26.addObjects([body20])
doc.recompute()

boolean27 = doc.addObject("PartDesign::Boolean", "Boolean026")
body29.addObject(boolean27)
boolean27.Type = "Fuse"
boolean27.addObjects([body28])
doc.recompute()

boolean28 = doc.addObject("PartDesign::Boolean", "Boolean027")
body29.addObject(boolean28)
boolean28.Type = "Cut"
boolean28.addObjects([body14])

doc.recompute()
